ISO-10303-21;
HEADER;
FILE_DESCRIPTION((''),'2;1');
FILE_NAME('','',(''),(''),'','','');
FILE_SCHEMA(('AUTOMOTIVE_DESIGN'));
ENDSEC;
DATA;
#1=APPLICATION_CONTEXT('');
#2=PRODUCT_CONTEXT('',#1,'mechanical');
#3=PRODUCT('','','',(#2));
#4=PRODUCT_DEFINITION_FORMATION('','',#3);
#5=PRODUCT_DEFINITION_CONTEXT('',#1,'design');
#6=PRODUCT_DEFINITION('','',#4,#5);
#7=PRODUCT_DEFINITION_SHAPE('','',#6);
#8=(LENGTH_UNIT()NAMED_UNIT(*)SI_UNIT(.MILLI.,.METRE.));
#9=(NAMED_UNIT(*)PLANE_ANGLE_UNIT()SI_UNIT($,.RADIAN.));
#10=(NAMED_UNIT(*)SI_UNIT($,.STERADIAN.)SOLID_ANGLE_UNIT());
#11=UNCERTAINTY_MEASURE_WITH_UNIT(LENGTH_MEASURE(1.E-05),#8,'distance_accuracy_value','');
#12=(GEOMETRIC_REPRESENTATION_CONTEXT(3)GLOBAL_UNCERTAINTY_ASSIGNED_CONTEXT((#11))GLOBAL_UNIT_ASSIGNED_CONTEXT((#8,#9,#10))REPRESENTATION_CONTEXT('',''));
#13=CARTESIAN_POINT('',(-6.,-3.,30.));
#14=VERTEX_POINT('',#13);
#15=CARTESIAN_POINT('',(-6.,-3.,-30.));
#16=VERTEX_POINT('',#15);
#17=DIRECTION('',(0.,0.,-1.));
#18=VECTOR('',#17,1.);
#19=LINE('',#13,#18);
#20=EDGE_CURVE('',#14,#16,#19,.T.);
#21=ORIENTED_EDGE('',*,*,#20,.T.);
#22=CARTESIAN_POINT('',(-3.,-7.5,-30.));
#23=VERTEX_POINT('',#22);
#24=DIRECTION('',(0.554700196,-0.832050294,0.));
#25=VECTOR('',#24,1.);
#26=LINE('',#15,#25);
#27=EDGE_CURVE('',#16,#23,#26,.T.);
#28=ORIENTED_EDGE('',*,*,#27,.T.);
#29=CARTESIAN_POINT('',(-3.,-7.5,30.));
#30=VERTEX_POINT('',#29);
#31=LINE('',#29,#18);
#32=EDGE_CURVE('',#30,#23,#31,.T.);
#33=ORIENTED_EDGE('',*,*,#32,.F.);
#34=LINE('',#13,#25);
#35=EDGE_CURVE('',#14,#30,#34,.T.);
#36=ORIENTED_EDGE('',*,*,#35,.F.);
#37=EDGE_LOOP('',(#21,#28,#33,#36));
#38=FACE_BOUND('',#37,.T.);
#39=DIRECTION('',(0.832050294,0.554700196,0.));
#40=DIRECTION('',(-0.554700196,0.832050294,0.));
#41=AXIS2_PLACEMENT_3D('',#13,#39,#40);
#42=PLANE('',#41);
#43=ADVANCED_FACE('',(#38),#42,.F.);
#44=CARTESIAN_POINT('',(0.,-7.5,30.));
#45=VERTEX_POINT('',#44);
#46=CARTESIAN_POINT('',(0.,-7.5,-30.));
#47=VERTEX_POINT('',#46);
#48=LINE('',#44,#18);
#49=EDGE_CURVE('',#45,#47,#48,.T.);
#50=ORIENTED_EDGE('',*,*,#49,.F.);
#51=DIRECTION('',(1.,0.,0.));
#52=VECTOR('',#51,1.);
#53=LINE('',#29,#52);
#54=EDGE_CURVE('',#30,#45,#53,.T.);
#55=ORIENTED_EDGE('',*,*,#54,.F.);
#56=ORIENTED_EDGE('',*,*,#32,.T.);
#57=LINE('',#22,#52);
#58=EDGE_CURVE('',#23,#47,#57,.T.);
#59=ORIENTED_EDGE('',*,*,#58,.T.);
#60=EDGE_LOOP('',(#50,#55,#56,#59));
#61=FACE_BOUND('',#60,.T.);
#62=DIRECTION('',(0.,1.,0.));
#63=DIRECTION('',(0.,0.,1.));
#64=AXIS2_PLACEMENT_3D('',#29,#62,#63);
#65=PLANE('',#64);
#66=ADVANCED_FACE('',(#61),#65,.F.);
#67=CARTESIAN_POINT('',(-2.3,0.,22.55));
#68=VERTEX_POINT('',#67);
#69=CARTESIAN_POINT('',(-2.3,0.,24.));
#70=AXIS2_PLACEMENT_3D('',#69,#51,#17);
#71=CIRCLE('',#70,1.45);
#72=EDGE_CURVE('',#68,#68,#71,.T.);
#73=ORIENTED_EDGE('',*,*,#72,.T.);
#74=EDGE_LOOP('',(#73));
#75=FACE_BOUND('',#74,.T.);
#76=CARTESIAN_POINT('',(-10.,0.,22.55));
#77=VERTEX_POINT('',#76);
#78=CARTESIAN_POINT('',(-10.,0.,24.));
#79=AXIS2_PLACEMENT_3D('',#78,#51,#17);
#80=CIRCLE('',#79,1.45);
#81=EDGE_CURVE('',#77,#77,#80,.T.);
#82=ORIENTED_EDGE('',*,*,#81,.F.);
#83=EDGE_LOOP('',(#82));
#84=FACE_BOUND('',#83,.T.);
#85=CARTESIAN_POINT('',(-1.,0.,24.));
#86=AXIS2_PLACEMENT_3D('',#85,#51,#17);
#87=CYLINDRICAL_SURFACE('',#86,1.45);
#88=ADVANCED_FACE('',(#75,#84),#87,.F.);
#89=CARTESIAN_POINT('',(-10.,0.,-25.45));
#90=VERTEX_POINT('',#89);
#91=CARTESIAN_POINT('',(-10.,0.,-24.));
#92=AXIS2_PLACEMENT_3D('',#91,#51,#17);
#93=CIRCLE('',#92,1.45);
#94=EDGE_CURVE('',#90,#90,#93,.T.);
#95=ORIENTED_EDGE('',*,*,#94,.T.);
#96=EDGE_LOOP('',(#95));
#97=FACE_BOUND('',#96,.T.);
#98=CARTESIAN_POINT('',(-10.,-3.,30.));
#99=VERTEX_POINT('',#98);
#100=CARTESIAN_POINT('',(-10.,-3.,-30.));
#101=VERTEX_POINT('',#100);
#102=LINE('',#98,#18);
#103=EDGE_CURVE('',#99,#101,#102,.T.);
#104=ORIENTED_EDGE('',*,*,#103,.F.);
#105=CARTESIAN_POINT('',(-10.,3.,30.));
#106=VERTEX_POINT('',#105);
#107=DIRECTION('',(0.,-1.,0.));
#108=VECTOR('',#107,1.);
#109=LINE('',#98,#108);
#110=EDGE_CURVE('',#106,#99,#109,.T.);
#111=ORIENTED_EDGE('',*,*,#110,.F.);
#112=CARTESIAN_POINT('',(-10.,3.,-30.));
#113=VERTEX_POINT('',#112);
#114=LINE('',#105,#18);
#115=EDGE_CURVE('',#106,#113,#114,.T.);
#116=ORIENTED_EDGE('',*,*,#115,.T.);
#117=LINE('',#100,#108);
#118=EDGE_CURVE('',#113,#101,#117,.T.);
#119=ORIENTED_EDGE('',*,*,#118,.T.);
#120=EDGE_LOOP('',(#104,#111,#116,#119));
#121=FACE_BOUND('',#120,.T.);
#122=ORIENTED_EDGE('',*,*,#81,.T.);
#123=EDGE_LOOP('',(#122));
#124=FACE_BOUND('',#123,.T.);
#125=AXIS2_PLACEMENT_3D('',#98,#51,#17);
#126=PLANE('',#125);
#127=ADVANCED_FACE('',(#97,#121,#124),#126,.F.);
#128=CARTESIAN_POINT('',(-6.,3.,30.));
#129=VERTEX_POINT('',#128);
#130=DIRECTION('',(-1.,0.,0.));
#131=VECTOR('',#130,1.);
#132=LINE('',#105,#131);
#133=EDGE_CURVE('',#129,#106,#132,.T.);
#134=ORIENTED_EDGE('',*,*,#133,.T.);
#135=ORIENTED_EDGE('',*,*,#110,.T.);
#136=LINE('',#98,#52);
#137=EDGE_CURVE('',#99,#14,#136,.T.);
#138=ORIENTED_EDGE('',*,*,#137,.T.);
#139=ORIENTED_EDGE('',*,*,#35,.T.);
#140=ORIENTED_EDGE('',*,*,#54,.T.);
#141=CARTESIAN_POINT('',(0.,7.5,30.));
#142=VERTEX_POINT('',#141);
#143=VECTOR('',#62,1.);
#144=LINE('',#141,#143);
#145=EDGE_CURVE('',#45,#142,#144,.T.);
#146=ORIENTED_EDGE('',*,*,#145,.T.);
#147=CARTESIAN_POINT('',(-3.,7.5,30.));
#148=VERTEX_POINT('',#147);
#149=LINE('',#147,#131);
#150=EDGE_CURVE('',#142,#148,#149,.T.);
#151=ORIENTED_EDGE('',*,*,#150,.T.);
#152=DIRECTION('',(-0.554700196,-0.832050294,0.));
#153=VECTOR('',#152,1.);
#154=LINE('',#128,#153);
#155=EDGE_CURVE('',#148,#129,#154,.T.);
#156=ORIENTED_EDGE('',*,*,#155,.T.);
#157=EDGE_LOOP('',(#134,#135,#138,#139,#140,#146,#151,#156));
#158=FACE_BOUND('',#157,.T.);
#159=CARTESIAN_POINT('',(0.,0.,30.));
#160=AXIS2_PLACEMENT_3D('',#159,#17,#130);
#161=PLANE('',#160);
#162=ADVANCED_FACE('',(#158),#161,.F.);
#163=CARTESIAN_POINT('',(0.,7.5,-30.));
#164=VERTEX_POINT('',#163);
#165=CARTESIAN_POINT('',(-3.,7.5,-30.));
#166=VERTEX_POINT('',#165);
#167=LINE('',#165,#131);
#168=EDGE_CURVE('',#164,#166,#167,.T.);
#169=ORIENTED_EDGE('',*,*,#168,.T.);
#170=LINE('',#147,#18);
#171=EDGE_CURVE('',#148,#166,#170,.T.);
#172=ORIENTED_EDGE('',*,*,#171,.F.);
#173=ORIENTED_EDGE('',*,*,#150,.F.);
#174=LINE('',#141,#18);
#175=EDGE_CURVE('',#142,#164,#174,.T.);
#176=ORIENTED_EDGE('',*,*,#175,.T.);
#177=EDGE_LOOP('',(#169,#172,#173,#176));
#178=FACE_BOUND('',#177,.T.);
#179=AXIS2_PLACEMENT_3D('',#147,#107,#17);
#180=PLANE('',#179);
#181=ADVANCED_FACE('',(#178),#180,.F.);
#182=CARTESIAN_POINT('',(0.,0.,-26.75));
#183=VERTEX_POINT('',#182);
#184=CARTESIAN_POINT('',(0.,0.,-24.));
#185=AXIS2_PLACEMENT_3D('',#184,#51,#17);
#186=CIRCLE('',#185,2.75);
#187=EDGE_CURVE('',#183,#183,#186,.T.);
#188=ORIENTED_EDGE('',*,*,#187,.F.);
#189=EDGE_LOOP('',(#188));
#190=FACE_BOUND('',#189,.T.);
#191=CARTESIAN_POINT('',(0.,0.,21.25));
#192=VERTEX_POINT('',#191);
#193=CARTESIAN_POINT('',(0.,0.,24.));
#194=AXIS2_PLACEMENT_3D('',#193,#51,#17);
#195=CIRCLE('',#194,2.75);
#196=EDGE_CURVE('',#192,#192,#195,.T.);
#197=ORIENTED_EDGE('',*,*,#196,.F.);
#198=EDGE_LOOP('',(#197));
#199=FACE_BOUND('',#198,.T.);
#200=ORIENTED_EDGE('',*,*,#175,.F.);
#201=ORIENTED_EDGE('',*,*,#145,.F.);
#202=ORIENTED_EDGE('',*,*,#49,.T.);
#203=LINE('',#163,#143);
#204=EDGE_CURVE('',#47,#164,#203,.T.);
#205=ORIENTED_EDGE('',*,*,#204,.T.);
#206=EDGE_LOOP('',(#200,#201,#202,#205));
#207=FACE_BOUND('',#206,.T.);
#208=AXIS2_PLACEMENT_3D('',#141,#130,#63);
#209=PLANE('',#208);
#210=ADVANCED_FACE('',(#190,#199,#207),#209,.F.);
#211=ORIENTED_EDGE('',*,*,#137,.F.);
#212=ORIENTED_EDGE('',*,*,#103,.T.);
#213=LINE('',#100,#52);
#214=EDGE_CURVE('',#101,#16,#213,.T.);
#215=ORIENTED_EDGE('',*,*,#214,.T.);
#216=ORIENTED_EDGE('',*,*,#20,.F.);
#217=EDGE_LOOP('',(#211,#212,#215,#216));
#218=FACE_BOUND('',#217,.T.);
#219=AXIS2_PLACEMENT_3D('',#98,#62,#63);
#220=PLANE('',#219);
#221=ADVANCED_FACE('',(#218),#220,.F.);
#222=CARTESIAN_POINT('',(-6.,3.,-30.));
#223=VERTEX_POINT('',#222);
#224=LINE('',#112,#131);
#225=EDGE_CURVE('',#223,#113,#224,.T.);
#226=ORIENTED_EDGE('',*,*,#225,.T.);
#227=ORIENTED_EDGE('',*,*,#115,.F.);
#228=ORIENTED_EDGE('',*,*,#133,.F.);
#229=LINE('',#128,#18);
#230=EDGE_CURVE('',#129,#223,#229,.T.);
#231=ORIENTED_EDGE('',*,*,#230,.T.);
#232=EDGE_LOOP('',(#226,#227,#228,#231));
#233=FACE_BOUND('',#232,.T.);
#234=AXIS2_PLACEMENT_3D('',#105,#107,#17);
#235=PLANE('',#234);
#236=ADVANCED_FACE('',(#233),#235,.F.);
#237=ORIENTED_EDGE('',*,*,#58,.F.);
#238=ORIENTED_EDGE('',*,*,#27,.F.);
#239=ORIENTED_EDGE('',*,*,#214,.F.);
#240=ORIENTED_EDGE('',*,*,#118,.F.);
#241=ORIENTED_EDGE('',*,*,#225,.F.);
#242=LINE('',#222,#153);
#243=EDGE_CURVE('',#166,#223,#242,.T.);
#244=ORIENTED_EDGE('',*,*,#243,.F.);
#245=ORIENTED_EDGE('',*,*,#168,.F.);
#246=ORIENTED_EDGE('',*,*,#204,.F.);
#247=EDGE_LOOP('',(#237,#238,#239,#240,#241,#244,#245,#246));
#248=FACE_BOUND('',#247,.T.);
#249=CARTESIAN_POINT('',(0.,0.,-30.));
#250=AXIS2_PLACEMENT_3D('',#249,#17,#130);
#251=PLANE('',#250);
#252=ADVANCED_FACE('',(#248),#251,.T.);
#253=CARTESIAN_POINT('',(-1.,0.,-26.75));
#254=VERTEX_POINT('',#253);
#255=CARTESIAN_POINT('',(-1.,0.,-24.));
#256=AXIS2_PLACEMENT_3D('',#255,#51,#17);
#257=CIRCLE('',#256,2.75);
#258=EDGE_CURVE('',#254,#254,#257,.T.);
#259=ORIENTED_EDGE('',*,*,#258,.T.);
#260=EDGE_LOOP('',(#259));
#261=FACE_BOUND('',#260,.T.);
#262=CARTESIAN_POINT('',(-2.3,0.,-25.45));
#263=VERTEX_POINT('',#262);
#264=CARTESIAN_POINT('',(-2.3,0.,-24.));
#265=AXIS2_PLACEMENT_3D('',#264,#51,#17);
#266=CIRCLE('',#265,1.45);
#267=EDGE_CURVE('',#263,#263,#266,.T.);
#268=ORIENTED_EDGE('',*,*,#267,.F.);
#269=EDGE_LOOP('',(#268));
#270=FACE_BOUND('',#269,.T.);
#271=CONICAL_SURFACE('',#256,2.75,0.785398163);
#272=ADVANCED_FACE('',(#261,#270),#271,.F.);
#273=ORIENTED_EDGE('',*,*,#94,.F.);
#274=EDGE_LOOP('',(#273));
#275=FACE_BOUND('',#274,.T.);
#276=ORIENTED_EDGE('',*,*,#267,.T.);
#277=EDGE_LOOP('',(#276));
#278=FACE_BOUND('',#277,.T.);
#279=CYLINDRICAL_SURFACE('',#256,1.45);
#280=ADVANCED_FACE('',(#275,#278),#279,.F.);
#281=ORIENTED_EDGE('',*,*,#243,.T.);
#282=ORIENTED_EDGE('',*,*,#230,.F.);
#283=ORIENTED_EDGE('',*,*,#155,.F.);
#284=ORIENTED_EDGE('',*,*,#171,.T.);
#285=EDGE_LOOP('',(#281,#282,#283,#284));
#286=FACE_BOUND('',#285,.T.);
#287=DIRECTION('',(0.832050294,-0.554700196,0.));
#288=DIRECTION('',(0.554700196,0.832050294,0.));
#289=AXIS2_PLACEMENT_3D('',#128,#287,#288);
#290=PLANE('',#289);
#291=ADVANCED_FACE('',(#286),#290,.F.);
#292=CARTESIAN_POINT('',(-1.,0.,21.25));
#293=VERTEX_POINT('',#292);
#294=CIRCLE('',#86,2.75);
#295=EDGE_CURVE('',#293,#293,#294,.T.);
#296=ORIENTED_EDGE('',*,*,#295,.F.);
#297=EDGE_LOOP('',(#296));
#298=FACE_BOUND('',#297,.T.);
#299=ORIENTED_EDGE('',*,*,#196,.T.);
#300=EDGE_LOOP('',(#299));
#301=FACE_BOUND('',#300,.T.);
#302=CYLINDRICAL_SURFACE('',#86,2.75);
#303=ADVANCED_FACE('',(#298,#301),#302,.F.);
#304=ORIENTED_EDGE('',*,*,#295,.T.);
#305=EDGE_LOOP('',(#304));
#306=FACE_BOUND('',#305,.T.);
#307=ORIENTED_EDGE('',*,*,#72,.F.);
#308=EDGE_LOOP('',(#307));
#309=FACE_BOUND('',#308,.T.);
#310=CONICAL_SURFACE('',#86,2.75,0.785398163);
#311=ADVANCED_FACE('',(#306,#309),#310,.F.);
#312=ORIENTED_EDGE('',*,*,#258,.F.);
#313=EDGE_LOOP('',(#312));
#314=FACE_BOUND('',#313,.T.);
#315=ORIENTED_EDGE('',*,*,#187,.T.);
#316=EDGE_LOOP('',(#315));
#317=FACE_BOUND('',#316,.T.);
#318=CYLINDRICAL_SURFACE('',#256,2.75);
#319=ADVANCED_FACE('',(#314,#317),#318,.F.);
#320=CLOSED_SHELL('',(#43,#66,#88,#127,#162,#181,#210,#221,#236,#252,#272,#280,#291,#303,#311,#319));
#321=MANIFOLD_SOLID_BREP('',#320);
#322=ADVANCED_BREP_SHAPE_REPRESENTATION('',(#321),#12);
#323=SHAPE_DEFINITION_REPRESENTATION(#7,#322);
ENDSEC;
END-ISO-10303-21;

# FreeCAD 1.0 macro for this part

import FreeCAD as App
import Part
import Sketcher

V = App.Vector

doc = App.newDocument("Part")
params = doc.addObject("Spreadsheet::Sheet", "Params")
for row, (alias, value) in enumerate([
    ("sketch1_width", "4 mm"),
    ("sketch1_width2", "3 mm"),
    ("sketch1_height", "6 mm"),
    ("sketch1_height2", "15 mm"),
    ("pad1_length", "60 mm"),
    ("sketch2_diameter", "5.5 mm"),
    ("pocket1_length", "1 mm"),
    ("sketch3_diameter", "2.9 mm"),
    ("hole_diameter", "2.9 mm"),
    ("hole_csink_diameter", "5.5 mm"),
], start=1):
    params.set(f"A{row}", alias)
    params.set(f"B{row}", "=" + value)
    params.setAlias(f"B{row}", alias)

body = doc.addObject("PartDesign::Body", "Body")

sketch1 = doc.addObject("Sketcher::SketchObject", "Sketch")
body.addObject(sketch1)
sketch1.AttachmentSupport = (doc.XY_Plane, [""])
sketch1.MapMode = "FlatFace"
sketch1.addGeometry([
    Part.LineSegment(V(-10, 3, 0), V(-10, -3, 0)),
    Part.LineSegment(V(-10, -3, 0), V(-6, -3, 0)),
    Part.LineSegment(V(-6, -3, 0), V(-3, -7.5, 0)),
    Part.LineSegment(V(-3, -7.5, 0), V(0, -7.5, 0)),
    Part.LineSegment(V(0, -7.5, 0), V(0, 7.5, 0)),
    Part.LineSegment(V(0, 7.5, 0), V(-3, 7.5, 0)),
    Part.LineSegment(V(-3, 7.5, 0), V(-6, 3, 0)),
    Part.LineSegment(V(-6, 3, 0), V(-10, 3, 0)),
], False)
sketch1.addConstraint([
    Sketcher.Constraint("Coincident", 0, 2, 1, 1),
    Sketcher.Constraint("Coincident", 1, 2, 2, 1),
    Sketcher.Constraint("Coincident", 2, 2, 3, 1),
    Sketcher.Constraint("Coincident", 3, 2, 4, 1),
    Sketcher.Constraint("Coincident", 4, 2, 5, 1),
    Sketcher.Constraint("Coincident", 5, 2, 6, 1),
    Sketcher.Constraint("Coincident", 6, 2, 7, 1),
    Sketcher.Constraint("Coincident", 7, 2, 0, 1),
    Sketcher.Constraint("Vertical", 0),
    Sketcher.Constraint("Horizontal", 1),
    Sketcher.Constraint("Horizontal", 3),
    Sketcher.Constraint("Vertical", 4),
    Sketcher.Constraint("Horizontal", 5),
    Sketcher.Constraint("Horizontal", 7),
    Sketcher.Constraint("Symmetric", 3, 2, 4, 2, -1, 1),
    Sketcher.Constraint("Symmetric", 1, 2, 6, 2, -1),
    Sketcher.Constraint("Vertical", 2, 2, 5, 2),
    Sketcher.Constraint("DistanceX", 1, 1, 1, 2, 4.0),
    Sketcher.Constraint("DistanceX", 3, 1, 3, 2, 3.0),
    Sketcher.Constraint("DistanceY", 0, 2, 0, 1, 6.0),
    Sketcher.Constraint("DistanceY", 4, 1, 4, 2, 15.0),
    Sketcher.Constraint("DistanceX", 0, 2, -1, 1, 10.0),
])
sketch1.setExpression("Constraints[17]", "Params.sketch1_width")
sketch1.setExpression("Constraints[18]", "Params.sketch1_width2")
sketch1.setExpression("Constraints[19]", "Params.sketch1_height")
sketch1.setExpression("Constraints[20]", "Params.sketch1_height2")
pad1 = doc.addObject("PartDesign::Pad", "Pad")
body.addObject(pad1)
pad1.Profile = sketch1
pad1.setExpression("Length", "Params.pad1_length")
pad1.Midplane = True

sketch2 = doc.addObject("Sketcher::SketchObject", "Sketch001")
body.addObject(sketch2)
sketch2.AttachmentSupport = (doc.YZ_Plane, [""])
sketch2.MapMode = "FlatFace"
sketch2.addGeometry([
    Part.Circle(V(0, 24, 0), V(0, 0, 1), 2.8),
    Part.Circle(V(0, -24, 0), V(0, 0, 1), 2.8),
], False)
sketch2.addConstraint([
    Sketcher.Constraint("Equal", 0, 1),
    Sketcher.Constraint("Symmetric", 0, 3, 1, 3, -1, 1),
    Sketcher.Constraint("PointOnObject", 0, 3, -2),
    Sketcher.Constraint("Diameter", 0, 5.5),
    Sketcher.Constraint("DistanceY", -1, 1, 0, 3, 24.0),
])
sketch2.setExpression("Constraints[3]", "Params.sketch2_diameter")
pocket1 = doc.addObject("PartDesign::Pocket", "Pocket")
body.addObject(pocket1)
pocket1.Profile = sketch2
pocket1.setExpression("Length", "Params.pocket1_length")

sketch3 = doc.addObject("Sketcher::SketchObject", "Sketch002")
body.addObject(sketch3)
sketch3.AttachmentSupport = (doc.YZ_Plane, [""])
sketch3.MapMode = "FlatFace"
sketch3.AttachmentOffset = App.Placement(V(0, 0, -1), App.Rotation())
sketch3.addGeometry([
    Part.Circle(V(0, 24, 0), V(0, 0, 1), 1.4),
    Part.Circle(V(0, -24, 0), V(0, 0, 1), 1.4),
], False)
sketch3.addConstraint([
    Sketcher.Constraint("Equal", 0, 1),
    Sketcher.Constraint("Symmetric", 0, 3, 1, 3, -1, 1),
    Sketcher.Constraint("PointOnObject", 0, 3, -2),
    Sketcher.Constraint("Diameter", 0, 2.9),
    Sketcher.Constraint("DistanceY", -1, 1, 0, 3, 24.0),
])
sketch3.setExpression("Constraints[3]", "Params.sketch3_diameter")
doc.recompute()
hole = doc.addObject("PartDesign::Hole", "Hole")
body.addObject(hole)
hole.Profile = sketch3
hole.ThreadType = "None"
hole.setExpression("Diameter", "Params.hole_diameter")
hole.DepthType = "ThroughAll"
hole.HoleCutType = "Countersink"
hole.setExpression("HoleCutDiameter", "Params.hole_csink_diameter")
hole.HoleCutCountersinkAngle = 90

doc.recompute()
